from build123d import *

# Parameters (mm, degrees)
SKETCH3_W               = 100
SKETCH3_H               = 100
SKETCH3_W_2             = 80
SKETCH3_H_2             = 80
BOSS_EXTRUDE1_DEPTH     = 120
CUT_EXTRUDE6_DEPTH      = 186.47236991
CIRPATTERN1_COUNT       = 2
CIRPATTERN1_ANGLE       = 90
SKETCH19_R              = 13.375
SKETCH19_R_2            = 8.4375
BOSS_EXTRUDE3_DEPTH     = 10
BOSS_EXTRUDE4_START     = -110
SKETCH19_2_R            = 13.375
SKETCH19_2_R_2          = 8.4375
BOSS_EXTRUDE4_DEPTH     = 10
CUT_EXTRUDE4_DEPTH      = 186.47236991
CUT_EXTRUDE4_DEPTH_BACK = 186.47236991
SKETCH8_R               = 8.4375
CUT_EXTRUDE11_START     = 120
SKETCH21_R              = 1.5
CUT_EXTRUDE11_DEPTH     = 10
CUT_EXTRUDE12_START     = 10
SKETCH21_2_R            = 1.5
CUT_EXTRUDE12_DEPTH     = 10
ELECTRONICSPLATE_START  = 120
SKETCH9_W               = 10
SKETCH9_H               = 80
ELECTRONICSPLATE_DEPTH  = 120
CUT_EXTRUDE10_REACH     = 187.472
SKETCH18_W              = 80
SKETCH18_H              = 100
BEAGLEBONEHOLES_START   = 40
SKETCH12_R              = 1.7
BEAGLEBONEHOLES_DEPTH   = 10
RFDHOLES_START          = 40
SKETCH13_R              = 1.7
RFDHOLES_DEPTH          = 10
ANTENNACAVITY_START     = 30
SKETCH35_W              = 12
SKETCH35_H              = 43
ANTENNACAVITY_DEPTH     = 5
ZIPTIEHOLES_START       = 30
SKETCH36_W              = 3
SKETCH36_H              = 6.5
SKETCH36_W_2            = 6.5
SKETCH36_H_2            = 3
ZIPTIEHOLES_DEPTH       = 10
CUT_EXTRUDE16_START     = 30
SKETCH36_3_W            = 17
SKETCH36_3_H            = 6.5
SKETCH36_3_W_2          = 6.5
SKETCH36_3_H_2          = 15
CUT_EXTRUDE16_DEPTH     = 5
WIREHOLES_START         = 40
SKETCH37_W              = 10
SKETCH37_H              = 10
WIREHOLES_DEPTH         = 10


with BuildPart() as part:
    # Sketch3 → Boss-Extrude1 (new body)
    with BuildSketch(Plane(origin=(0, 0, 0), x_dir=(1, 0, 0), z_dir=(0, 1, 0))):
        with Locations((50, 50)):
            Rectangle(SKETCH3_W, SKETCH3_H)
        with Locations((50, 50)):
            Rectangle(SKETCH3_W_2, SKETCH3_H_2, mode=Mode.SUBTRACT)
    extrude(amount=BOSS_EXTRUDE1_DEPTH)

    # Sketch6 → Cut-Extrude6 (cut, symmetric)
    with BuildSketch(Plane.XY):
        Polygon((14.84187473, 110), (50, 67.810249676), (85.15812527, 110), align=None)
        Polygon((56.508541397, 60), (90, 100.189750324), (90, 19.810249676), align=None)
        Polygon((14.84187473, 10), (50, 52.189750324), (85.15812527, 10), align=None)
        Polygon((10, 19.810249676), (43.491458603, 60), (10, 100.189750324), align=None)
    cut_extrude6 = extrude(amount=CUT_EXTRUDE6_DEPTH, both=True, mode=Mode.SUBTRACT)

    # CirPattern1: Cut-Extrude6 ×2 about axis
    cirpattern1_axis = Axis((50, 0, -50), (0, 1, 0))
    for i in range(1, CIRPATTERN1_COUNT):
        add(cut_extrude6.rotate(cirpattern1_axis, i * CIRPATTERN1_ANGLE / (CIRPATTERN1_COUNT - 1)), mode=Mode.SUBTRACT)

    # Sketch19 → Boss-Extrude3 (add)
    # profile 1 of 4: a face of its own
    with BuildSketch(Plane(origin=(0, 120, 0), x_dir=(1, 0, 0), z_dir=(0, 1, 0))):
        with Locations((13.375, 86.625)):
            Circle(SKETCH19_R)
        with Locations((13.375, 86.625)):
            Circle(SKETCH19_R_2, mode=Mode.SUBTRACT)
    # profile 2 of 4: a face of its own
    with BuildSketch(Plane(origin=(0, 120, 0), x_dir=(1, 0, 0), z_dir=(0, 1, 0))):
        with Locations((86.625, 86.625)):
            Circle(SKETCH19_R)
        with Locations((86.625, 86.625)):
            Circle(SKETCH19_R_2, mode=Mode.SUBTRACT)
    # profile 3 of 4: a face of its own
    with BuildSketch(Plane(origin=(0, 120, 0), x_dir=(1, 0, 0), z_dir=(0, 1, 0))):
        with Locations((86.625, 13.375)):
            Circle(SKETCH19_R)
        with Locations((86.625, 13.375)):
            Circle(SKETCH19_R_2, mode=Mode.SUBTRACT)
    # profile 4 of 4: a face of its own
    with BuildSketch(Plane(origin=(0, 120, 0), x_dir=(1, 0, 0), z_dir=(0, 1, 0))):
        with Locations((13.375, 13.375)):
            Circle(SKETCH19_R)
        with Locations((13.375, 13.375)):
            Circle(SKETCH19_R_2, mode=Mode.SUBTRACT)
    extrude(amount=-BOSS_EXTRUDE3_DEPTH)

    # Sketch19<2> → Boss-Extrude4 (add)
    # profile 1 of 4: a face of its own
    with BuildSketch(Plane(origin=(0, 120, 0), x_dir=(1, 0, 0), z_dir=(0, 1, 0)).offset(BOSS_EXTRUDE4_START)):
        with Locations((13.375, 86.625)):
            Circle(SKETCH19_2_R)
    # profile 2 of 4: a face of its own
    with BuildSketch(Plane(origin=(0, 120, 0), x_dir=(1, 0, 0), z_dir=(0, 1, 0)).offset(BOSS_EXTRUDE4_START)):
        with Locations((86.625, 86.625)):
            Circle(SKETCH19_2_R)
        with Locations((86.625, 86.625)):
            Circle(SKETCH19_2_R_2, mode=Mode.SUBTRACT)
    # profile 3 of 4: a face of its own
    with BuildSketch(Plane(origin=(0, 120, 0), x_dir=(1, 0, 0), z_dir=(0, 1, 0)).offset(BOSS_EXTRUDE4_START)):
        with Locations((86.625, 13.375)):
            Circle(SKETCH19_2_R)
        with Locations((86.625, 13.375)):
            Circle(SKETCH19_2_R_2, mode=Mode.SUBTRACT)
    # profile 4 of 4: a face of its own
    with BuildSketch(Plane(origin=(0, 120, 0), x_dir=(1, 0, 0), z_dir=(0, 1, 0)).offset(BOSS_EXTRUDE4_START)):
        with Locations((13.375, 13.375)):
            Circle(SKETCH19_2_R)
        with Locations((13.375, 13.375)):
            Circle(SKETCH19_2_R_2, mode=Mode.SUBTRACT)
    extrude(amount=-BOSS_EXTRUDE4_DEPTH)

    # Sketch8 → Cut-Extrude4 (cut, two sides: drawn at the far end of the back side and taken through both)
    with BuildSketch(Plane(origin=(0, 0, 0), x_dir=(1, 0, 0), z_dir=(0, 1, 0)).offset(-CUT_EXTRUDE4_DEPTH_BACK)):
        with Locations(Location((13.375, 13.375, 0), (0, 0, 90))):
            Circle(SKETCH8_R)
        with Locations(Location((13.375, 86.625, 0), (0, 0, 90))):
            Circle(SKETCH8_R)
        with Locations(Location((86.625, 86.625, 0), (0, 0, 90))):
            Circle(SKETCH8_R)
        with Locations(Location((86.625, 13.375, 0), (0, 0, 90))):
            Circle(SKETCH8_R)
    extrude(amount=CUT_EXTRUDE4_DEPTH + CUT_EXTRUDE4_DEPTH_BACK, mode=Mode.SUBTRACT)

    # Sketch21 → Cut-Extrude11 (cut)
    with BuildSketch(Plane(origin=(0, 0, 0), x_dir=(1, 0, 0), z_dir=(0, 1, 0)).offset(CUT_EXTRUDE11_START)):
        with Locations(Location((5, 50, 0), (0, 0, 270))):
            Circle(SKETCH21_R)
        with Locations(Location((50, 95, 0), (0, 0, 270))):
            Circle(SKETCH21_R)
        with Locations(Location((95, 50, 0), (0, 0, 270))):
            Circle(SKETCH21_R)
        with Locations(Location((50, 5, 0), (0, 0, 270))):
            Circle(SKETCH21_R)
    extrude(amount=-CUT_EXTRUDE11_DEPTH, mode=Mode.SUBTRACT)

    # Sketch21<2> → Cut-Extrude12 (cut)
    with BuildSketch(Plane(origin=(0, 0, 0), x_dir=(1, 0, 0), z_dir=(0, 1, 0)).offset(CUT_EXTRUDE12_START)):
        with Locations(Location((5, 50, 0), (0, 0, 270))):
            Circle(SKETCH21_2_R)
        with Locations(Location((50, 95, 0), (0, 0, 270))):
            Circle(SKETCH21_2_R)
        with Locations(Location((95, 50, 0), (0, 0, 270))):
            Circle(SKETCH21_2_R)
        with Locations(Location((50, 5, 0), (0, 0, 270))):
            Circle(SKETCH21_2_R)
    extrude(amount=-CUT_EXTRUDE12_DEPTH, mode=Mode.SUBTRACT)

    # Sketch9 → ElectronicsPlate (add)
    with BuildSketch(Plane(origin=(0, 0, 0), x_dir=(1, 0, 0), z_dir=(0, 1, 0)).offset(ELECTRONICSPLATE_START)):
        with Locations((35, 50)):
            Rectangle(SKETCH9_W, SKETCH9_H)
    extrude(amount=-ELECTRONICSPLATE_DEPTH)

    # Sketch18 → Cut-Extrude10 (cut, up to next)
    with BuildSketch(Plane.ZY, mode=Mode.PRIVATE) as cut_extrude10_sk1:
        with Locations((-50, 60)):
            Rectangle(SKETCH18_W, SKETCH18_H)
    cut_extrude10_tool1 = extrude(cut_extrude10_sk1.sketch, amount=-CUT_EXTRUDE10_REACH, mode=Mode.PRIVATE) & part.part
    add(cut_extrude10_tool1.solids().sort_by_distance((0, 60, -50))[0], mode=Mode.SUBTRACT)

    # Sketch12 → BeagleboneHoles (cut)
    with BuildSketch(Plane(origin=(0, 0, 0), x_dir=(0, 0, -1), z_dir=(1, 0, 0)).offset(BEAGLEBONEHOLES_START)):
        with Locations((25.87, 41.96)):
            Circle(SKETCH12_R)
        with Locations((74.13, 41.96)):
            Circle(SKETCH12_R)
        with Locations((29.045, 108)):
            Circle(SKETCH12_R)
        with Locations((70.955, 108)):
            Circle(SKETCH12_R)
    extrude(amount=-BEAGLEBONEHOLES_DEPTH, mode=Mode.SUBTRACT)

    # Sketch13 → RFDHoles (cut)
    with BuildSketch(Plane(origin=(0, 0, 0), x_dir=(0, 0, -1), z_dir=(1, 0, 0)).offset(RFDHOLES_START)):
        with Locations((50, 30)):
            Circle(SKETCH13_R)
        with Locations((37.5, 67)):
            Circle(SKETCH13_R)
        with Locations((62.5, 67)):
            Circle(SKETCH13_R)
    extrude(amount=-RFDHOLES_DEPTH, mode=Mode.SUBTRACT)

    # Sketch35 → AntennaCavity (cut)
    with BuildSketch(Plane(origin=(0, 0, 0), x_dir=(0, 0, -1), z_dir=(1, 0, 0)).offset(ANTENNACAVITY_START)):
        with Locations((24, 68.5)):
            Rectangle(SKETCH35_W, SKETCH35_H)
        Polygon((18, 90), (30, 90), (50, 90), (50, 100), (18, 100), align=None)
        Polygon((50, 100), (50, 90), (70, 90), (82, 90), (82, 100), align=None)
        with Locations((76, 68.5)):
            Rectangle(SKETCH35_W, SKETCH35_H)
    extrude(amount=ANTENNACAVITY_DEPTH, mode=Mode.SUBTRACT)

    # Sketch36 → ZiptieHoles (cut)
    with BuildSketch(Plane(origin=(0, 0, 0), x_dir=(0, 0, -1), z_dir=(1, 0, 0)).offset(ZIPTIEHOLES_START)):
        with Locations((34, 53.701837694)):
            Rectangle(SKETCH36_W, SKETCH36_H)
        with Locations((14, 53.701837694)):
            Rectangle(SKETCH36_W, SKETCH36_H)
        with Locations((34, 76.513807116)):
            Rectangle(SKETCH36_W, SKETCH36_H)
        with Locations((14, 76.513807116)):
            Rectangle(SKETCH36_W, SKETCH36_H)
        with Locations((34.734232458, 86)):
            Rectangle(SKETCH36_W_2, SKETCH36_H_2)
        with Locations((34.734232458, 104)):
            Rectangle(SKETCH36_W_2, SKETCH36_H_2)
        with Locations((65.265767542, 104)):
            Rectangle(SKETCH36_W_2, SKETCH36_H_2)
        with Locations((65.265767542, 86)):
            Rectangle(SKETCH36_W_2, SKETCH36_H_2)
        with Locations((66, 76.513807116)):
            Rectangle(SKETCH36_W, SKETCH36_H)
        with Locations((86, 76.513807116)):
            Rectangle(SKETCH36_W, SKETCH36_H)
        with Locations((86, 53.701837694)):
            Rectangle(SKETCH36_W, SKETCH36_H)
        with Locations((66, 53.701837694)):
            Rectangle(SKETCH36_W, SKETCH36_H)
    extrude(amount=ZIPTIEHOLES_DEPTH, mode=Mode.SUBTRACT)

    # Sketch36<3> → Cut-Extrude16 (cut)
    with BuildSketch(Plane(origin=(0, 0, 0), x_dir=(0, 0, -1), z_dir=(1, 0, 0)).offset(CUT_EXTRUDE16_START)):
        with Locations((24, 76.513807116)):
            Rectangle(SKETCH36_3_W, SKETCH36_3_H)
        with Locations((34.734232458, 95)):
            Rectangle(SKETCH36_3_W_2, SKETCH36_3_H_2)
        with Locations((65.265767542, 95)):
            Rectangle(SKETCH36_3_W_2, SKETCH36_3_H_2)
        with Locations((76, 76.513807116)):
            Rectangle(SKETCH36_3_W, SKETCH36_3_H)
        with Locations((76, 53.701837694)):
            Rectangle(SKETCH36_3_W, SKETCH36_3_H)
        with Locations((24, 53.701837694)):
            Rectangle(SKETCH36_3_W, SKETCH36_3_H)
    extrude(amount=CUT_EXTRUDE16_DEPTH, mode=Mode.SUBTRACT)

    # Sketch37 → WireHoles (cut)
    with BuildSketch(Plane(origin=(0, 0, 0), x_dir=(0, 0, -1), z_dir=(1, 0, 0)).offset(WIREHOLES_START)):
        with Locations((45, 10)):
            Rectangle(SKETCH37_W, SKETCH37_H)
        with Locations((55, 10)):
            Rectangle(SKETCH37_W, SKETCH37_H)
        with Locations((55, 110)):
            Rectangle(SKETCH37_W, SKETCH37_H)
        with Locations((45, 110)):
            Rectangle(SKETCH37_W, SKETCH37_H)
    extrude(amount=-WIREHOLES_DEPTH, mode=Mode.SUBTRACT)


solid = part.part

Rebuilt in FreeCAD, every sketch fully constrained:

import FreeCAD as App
import Part
import Sketcher

V = App.Vector


def add_polygon(sketch, points):
    """Adds a closed chain of lines whose ends are joined by coincident constraints."""
    first, n = sketch.GeometryCount, len(points)
    for a, b in zip(points, points[1:] + points[:1]):
        sketch.addGeometry(Part.LineSegment(App.Vector(*a, 0), App.Vector(*b, 0)), False)
    for i in range(n):
        sketch.addConstraint(Sketcher.Constraint("Coincident", first + i, 2, first + (i + 1) % n, 1))

doc = App.newDocument("Part")
body = doc.addObject("PartDesign::Body", "Body")

# Sketch on XZ plane
sketch1 = doc.addObject("Sketcher::SketchObject", "Sketch")
body.addObject(sketch1)
sketch1.AttachmentSupport = (doc.XZ_Plane, [""])
sketch1.MapMode = "FlatFace"
add_polygon(sketch1, [(0, -100), (0, 0), (100, 0), (100, -100)])  # lines 0-3
add_polygon(sketch1, [(90, -10), (10, -10), (10, -90), (90, -90)])  # lines 4-7
sketch1.addConstraint([
    Sketcher.Constraint("Vertical", 0),
    Sketcher.Constraint("Horizontal", 1),
    Sketcher.Constraint("Vertical", 2),
    Sketcher.Constraint("Horizontal", 3),
    Sketcher.Constraint("Horizontal", 4),
    Sketcher.Constraint("Vertical", 5),
    Sketcher.Constraint("Horizontal", 6),
    Sketcher.Constraint("Vertical", 7),
    Sketcher.Constraint("Coincident", 0, 2, -1, 1),
    Sketcher.Constraint("Equal", 3, 0),
    Sketcher.Constraint("Equal", 6, 5),
    Sketcher.Constraint("DistanceX", 1, 1, 1, 2, 100.0),
    Sketcher.Constraint("DistanceX", 4, 2, 4, 1, 80.0),
    Sketcher.Constraint("DistanceX", -1, 1, 4, 2, 10.0),
    Sketcher.Constraint("DistanceY", 4, 2, -1, 1, 10.0),
])
pad1 = doc.addObject("PartDesign::Pad", "Pad")
body.addObject(pad1)
pad1.Profile = sketch1
pad1.Length = 120
pad1.Reversed = True

# Sketch on XY plane
sketch2 = doc.addObject("Sketcher::SketchObject", "Sketch001")
body.addObject(sketch2)
sketch2.AttachmentSupport = (doc.XY_Plane, [""])
sketch2.MapMode = "FlatFace"
add_polygon(sketch2, [(15, 110), (50, 68), (85, 110)])  # lines 0-2
add_polygon(sketch2, [(90, 100), (57, 60), (90, 20)])  # lines 3-5
add_polygon(sketch2, [(50, 52), (15, 10), (85, 10)])  # lines 6-8
add_polygon(sketch2, [(10, 20), (43, 60), (10, 100)])  # lines 9-11
sketch2.addConstraint([
    Sketcher.Constraint("Horizontal", 2),
    Sketcher.Constraint("Vertical", 5),
    Sketcher.Constraint("Horizontal", 7),
    Sketcher.Constraint("Vertical", 11),
    Sketcher.Constraint("Parallel", 1, 3),
    Sketcher.Constraint("Parallel", 0, 4),
    Sketcher.Constraint("Parallel", 3, 6),
    Sketcher.Constraint("Parallel", 4, 8),
    Sketcher.Constraint("Parallel", 6, 9),
    Sketcher.Constraint("Parallel", 8, 10),
    Sketcher.Constraint("Horizontal", 3, 2, 9, 2),
    Sketcher.Constraint("Horizontal", 5, 2, 10, 2),
    Sketcher.Constraint("Horizontal", 4, 2, 11, 2),
    Sketcher.Constraint("Vertical", 2, 2, 6, 2),
    Sketcher.Constraint("Vertical", 1, 2, 7, 2),
    Sketcher.Constraint("DistanceX", -1, 1, 0, 2, 50.0),
    Sketcher.Constraint("DistanceY", -1, 1, 1, 2, 110.0),
    Sketcher.Constraint("DistanceY", -1, 1, 3, 2, 60.0),
    Sketcher.Constraint("DistanceX", -1, 1, 4, 2, 90.0),
    Sketcher.Constraint("DistanceY", -1, 1, 6, 2, 10.0),
    Sketcher.Constraint("DistanceX", -1, 1, 10, 2, 10.0),
    Sketcher.Constraint("DistanceY", 4, 2, 0, 2, 48.0),
    Sketcher.Constraint("DistanceY", 5, 1, 5, 2, 80.379501),
    Sketcher.Constraint("DistanceX", 2, 2, 2, 1, 70.316251),
])
pocket1 = doc.addObject("PartDesign::Pocket", "Pocket")
body.addObject(pocket1)
pocket1.Profile = sketch2
pocket1.Length = 372.94474
pocket1.Midplane = True
doc.recompute()

datumline = doc.addObject("PartDesign::Line", "DatumLine")
body.addObject(datumline)
datumline.Placement = App.Placement(V(50, 0, -50), App.Rotation(V(0, 0, 1), V(0, 1, 0)))
polarpattern = doc.addObject("PartDesign::PolarPattern", "PolarPattern")
body.addObject(polarpattern)
polarpattern.Originals = [pocket1]
polarpattern.Axis = (datumline, [""])
polarpattern.Angle = 90
polarpattern.Occurrences = 2
body.Tip = polarpattern

# Sketch on XZ plane
sketch3 = doc.addObject("Sketcher::SketchObject", "Sketch002")
body.addObject(sketch3)
sketch3.AttachmentSupport = (doc.XZ_Plane, [""])
sketch3.MapMode = "FlatFace"
sketch3.AttachmentOffset = App.Placement(V(0, 0, -120), App.Rotation())
sketch3.addGeometry([
    Part.Circle(V(13, -87, 0), V(0, 0, 1), 13),  # 0
    Part.Circle(V(13, -87, 0), V(0, 0, 1), 8),  # 1
    Part.Circle(V(87, -87, 0), V(0, 0, 1), 13),  # 2
    Part.Circle(V(87, -87, 0), V(0, 0, 1), 8),  # 3
    Part.Circle(V(87, -13, 0), V(0, 0, 1), 13),  # 4
    Part.Circle(V(87, -13, 0), V(0, 0, 1), 8),  # 5
    Part.Circle(V(13, -13, 0), V(0, 0, 1), 13),  # 6
    Part.Circle(V(13, -13, 0), V(0, 0, 1), 8),  # 7
], False)
sketch3.addConstraint([
    Sketcher.Constraint("Coincident", 1, 3, 0, 3),
    Sketcher.Constraint("Coincident", 3, 3, 2, 3),
    Sketcher.Constraint("Coincident", 5, 3, 4, 3),
    Sketcher.Constraint("Coincident", 7, 3, 6, 3),
    Sketcher.Constraint("Equal", 0, 2),
    Sketcher.Constraint("Equal", 1, 3),
    Sketcher.Constraint("Equal", 2, 4),
    Sketcher.Constraint("Equal", 3, 5),
    Sketcher.Constraint("Equal", 4, 6),
    Sketcher.Constraint("Equal", 5, 7),
    Sketcher.Constraint("Horizontal", 1, 3, 2, 3),
    Sketcher.Constraint("Horizontal", 5, 3, 6, 3),
    Sketcher.Constraint("Vertical", 3, 3, 4, 3),
    Sketcher.Constraint("Vertical", 1, 3, 6, 3),
    Sketcher.Constraint("Diameter", 0, 26.75),
    Sketcher.Constraint("Diameter", 1, 16.875),
    Sketcher.Constraint("DistanceX", 0, 3, 2, 3, 73.25),
    Sketcher.Constraint("DistanceY", 2, 3, 4, 3, 73.25),
    Sketcher.Constraint("DistanceX", -1, 1, 0, 3, 13.375),
    Sketcher.Constraint("DistanceY", 0, 3, -1, 1, 86.625),
])
pad2 = doc.addObject("PartDesign::Pad", "Pad001")
body.addObject(pad2)
pad2.Profile = sketch3
pad2.Length = 10

# Sketch on XZ plane
sketch4 = doc.addObject("Sketcher::SketchObject", "Sketch003")
body.addObject(sketch4)
sketch4.AttachmentSupport = (doc.XZ_Plane, [""])
sketch4.MapMode = "FlatFace"
sketch4.AttachmentOffset = App.Placement(V(0, 0, -10), App.Rotation())
sketch4.addGeometry([
    Part.Circle(V(13, -87, 0), V(0, 0, 1), 13),  # 0
    Part.Circle(V(87, -87, 0), V(0, 0, 1), 13),  # 1
    Part.Circle(V(87, -87, 0), V(0, 0, 1), 8),  # 2
    Part.Circle(V(87, -13, 0), V(0, 0, 1), 13),  # 3
    Part.Circle(V(87, -13, 0), V(0, 0, 1), 8),  # 4
    Part.Circle(V(13, -13, 0), V(0, 0, 1), 13),  # 5
    Part.Circle(V(13, -13, 0), V(0, 0, 1), 8),  # 6
], False)
sketch4.addConstraint([
    Sketcher.Constraint("Coincident", 2, 3, 1, 3),
    Sketcher.Constraint("Coincident", 4, 3, 3, 3),
    Sketcher.Constraint("Coincident", 6, 3, 5, 3),
    Sketcher.Constraint("Equal", 0, 1),
    Sketcher.Constraint("Equal", 1, 3),
    Sketcher.Constraint("Equal", 2, 4),
    Sketcher.Constraint("Equal", 3, 5),
    Sketcher.Constraint("Equal", 4, 6),
    Sketcher.Constraint("Horizontal", 0, 3, 1, 3),
    Sketcher.Constraint("Horizontal", 4, 3, 5, 3),
    Sketcher.Constraint("Vertical", 2, 3, 3, 3),
    Sketcher.Constraint("Vertical", 0, 3, 5, 3),
    Sketcher.Constraint("Diameter", 0, 26.75),
    Sketcher.Constraint("Diameter", 2, 16.875),
    Sketcher.Constraint("DistanceX", 0, 3, 1, 3, 73.25),
    Sketcher.Constraint("DistanceY", 1, 3, 3, 3, 73.25),
    Sketcher.Constraint("DistanceX", -1, 1, 0, 3, 13.375),
    Sketcher.Constraint("DistanceY", 0, 3, -1, 1, 86.625),
])
pad3 = doc.addObject("PartDesign::Pad", "Pad002")
body.addObject(pad3)
pad3.Profile = sketch4
pad3.Length = 10

# Sketch on XZ plane
sketch5 = doc.addObject("Sketcher::SketchObject", "Sketch004")
body.addObject(sketch5)
sketch5.AttachmentSupport = (doc.XZ_Plane, [""])
sketch5.MapMode = "FlatFace"
sketch5.addGeometry([
    Part.Circle(V(13, -13, 0), V(0, 0, 1), 8),
    Part.Circle(V(13, -87, 0), V(0, 0, 1), 8),
    Part.Circle(V(87, -87, 0), V(0, 0, 1), 8),
    Part.Circle(V(87, -13, 0), V(0, 0, 1), 8),
], False)
sketch5.addConstraint([
    Sketcher.Constraint("Equal", 0, 1),
    Sketcher.Constraint("Equal", 1, 2),
    Sketcher.Constraint("Equal", 2, 3),
    Sketcher.Constraint("Horizontal", 1, 3, 2, 3),
    Sketcher.Constraint("Horizontal", 0, 3, 3, 3),
    Sketcher.Constraint("Vertical", 0, 3, 1, 3),
    Sketcher.Constraint("Vertical", 2, 3, 3, 3),
    Sketcher.Constraint("Diameter", 0, 16.875),
    Sketcher.Constraint("DistanceY", 1, 3, 0, 3, 73.25),
    Sketcher.Constraint("DistanceX", 1, 3, 2, 3, 73.25),
    Sketcher.Constraint("DistanceX", -1, 1, 0, 3, 13.375),
    Sketcher.Constraint("DistanceY", 0, 3, -1, 1, 13.375),
])
pocket2 = doc.addObject("PartDesign::Pocket", "Pocket001")
body.addObject(pocket2)
pocket2.Profile = sketch5
pocket2.Type = "ThroughAll"
pocket2.Midplane = True

# Sketch on XZ plane
sketch6 = doc.addObject("Sketcher::SketchObject", "Sketch005")
body.addObject(sketch6)
sketch6.AttachmentSupport = (doc.XZ_Plane, [""])
sketch6.MapMode = "FlatFace"
sketch6.AttachmentOffset = App.Placement(V(0, 0, -120), App.Rotation())
sketch6.addGeometry([
    Part.Circle(V(5, -50, 0), V(0, 0, 1), 1.5),
    Part.Circle(V(50, -95, 0), V(0, 0, 1), 1.5),
    Part.Circle(V(95, -50, 0), V(0, 0, 1), 1.5),
    Part.Circle(V(50, -5, 0), V(0, 0, 1), 1.5),
], False)
sketch6.addConstraint([
    Sketcher.Constraint("Equal", 0, 1),
    Sketcher.Constraint("Equal", 1, 2),
    Sketcher.Constraint("Equal", 2, 3),
    Sketcher.Constraint("Horizontal", 0, 3, 2, 3),
    Sketcher.Constraint("Vertical", 1, 3, 3, 3),
    Sketcher.Constraint("Diameter", 0, 3.0),
    Sketcher.Constraint("DistanceX", -1, 1, 0, 3, 5.0),
    Sketcher.Constraint("DistanceY", 0, 3, -1, 1, 50.0),
    Sketcher.Constraint("DistanceX", -1, 1, 1, 3, 50.0),
    Sketcher.Constraint("DistanceY", 1, 3, -1, 1, 95.0),
    Sketcher.Constraint("DistanceX", -1, 1, 2, 3, 95.0),
    Sketcher.Constraint("DistanceY", 3, 3, -1, 1, 5.0),
])
pocket3 = doc.addObject("PartDesign::Pocket", "Pocket002")
body.addObject(pocket3)
pocket3.Profile = sketch6
pocket3.Length = 10
pocket3.Reversed = True

# Sketch on XZ plane
sketch7 = doc.addObject("Sketcher::SketchObject", "Sketch006")
body.addObject(sketch7)
sketch7.AttachmentSupport = (doc.XZ_Plane, [""])
sketch7.MapMode = "FlatFace"
sketch7.AttachmentOffset = App.Placement(V(0, 0, -10), App.Rotation())
sketch7.addGeometry([
    Part.Circle(V(5, -50, 0), V(0, 0, 1), 1.5),
    Part.Circle(V(50, -95, 0), V(0, 0, 1), 1.5),
    Part.Circle(V(95, -50, 0), V(0, 0, 1), 1.5),
    Part.Circle(V(50, -5, 0), V(0, 0, 1), 1.5),
], False)
sketch7.addConstraint([
    Sketcher.Constraint("Equal", 0, 1),
    Sketcher.Constraint("Equal", 1, 2),
    Sketcher.Constraint("Equal", 2, 3),
    Sketcher.Constraint("Horizontal", 0, 3, 2, 3),
    Sketcher.Constraint("Vertical", 1, 3, 3, 3),
    Sketcher.Constraint("Diameter", 0, 3.0),
    Sketcher.Constraint("DistanceX", -1, 1, 0, 3, 5.0),
    Sketcher.Constraint("DistanceY", 0, 3, -1, 1, 50.0),
    Sketcher.Constraint("DistanceX", -1, 1, 1, 3, 50.0),
    Sketcher.Constraint("DistanceY", 1, 3, -1, 1, 95.0),
    Sketcher.Constraint("DistanceX", -1, 1, 2, 3, 95.0),
    Sketcher.Constraint("DistanceY", 3, 3, -1, 1, 5.0),
])
pocket4 = doc.addObject("PartDesign::Pocket", "Pocket003")
body.addObject(pocket4)
pocket4.Profile = sketch7
pocket4.Length = 10
pocket4.Reversed = True

# Sketch on XZ plane
sketch8 = doc.addObject("Sketcher::SketchObject", "Sketch007")
body.addObject(sketch8)
sketch8.AttachmentSupport = (doc.XZ_Plane, [""])
sketch8.MapMode = "FlatFace"
sketch8.AttachmentOffset = App.Placement(V(0, 0, -120), App.Rotation())
add_polygon(sketch8, [(30, -90), (30, -10), (40, -10), (40, -90)])  # lines 0-3
sketch8.addConstraint([
    Sketcher.Constraint("Vertical", 0),
    Sketcher.Constraint("Horizontal", 1),
    Sketcher.Constraint("Vertical", 2),
    Sketcher.Constraint("Horizontal", 3),
    Sketcher.Constraint("DistanceX", 1, 1, 1, 2, 10.0),
    Sketcher.Constraint("DistanceY", 0, 1, 0, 2, 80.0),
    Sketcher.Constraint("DistanceX", -1, 1, 0, 2, 30.0),
    Sketcher.Constraint("DistanceY", 0, 2, -1, 1, 10.0),
])
pad4 = doc.addObject("PartDesign::Pad", "Pad003")
body.addObject(pad4)
pad4.Profile = sketch8
pad4.Length = 120

# Sketch on YZ plane
sketch9 = doc.addObject("Sketcher::SketchObject", "Sketch008")
body.addObject(sketch9)
sketch9.AttachmentSupport = (doc.YZ_Plane, [""])
sketch9.MapMode = "FlatFace"
add_polygon(sketch9, [(110, -90), (10, -90), (10, -10), (110, -10)])  # lines 0-3
sketch9.addConstraint([
    Sketcher.Constraint("Horizontal", 0),
    Sketcher.Constraint("Vertical", 1),
    Sketcher.Constraint("Horizontal", 2),
    Sketcher.Constraint("Vertical", 3),
    Sketcher.Constraint("DistanceX", 0, 2, 0, 1, 100.0),
    Sketcher.Constraint("DistanceY", 1, 1, 1, 2, 80.0),
    Sketcher.Constraint("DistanceX", -1, 1, 0, 2, 10.0),
    Sketcher.Constraint("DistanceY", 0, 2, -1, 1, 90.0),
])
pocket5 = doc.addObject("PartDesign::Pocket", "Pocket004")
body.addObject(pocket5)
pocket5.Profile = sketch9
pocket5.Type = "UpToFirst"
pocket5.Reversed = True

# Sketch on YZ plane
sketch10 = doc.addObject("Sketcher::SketchObject", "Sketch009")
body.addObject(sketch10)
sketch10.AttachmentSupport = (doc.YZ_Plane, [""])
sketch10.MapMode = "FlatFace"
sketch10.AttachmentOffset = App.Placement(V(0, 0, 40), App.Rotation())
sketch10.addGeometry([
    Part.Circle(V(42, -25.9, 0), V(0, 0, 1), 1.7),
    Part.Circle(V(42, -74.1, 0), V(0, 0, 1), 1.7),
    Part.Circle(V(108, -29, 0), V(0, 0, 1), 1.7),
    Part.Circle(V(108, -71, 0), V(0, 0, 1), 1.7),
], False)
sketch10.addConstraint([
    Sketcher.Constraint("Equal", 0, 1),
    Sketcher.Constraint("Equal", 1, 2),
    Sketcher.Constraint("Equal", 2, 3),
    Sketcher.Constraint("Vertical", 0, 3, 1, 3),
    Sketcher.Constraint("Vertical", 2, 3, 3, 3),
    Sketcher.Constraint("Diameter", 0, 3.4),
    Sketcher.Constraint("DistanceX", -1, 1, 2, 3, 108.0),
    Sketcher.Constraint("DistanceX", -1, 1, 0, 3, 41.96),
    Sketcher.Constraint("DistanceY", 0, 3, -1, 1, 25.87),
    Sketcher.Constraint("DistanceY", 1, 3, -1, 1, 74.13),
    Sketcher.Constraint("DistanceY", 3, 3, 2, 3, 41.91),
    Sketcher.Constraint("DistanceY", 2, 3, -1, 1, 29.045),
])
pocket6 = doc.addObject("PartDesign::Pocket", "Pocket005")
body.addObject(pocket6)
pocket6.Profile = sketch10
pocket6.Length = 10

# Sketch on YZ plane
sketch11 = doc.addObject("Sketcher::SketchObject", "Sketch010")
body.addObject(sketch11)
sketch11.AttachmentSupport = (doc.YZ_Plane, [""])
sketch11.MapMode = "FlatFace"
sketch11.AttachmentOffset = App.Placement(V(0, 0, 40), App.Rotation())
sketch11.addGeometry([
    Part.Circle(V(30, -50, 0), V(0, 0, 1), 1.7),
    Part.Circle(V(67, -37.5, 0), V(0, 0, 1), 1.7),
    Part.Circle(V(67, -62.5, 0), V(0, 0, 1), 1.7),
], False)
sketch11.addConstraint([
    Sketcher.Constraint("Equal", 0, 1),
    Sketcher.Constraint("Equal", 1, 2),
    Sketcher.Constraint("Vertical", 1, 3, 2, 3),
    Sketcher.Constraint("Diameter", 0, 3.4),
    Sketcher.Constraint("DistanceX", -1, 1, 0, 3, 30.0),
    Sketcher.Constraint("DistanceY", 0, 3, -1, 1, 50.0),
    Sketcher.Constraint("DistanceX", -1, 1, 1, 3, 67.0),
    Sketcher.Constraint("DistanceY", 2, 3, 1, 3, 25.0),
    Sketcher.Constraint("DistanceY", 1, 3, -1, 1, 37.5),
])
pocket7 = doc.addObject("PartDesign::Pocket", "Pocket006")
body.addObject(pocket7)
pocket7.Profile = sketch11
pocket7.Length = 10

# Sketch on YZ plane
sketch12 = doc.addObject("Sketcher::SketchObject", "Sketch011")
body.addObject(sketch12)
sketch12.AttachmentSupport = (doc.YZ_Plane, [""])
sketch12.MapMode = "FlatFace"
sketch12.AttachmentOffset = App.Placement(V(0, 0, 30), App.Rotation())
add_polygon(sketch12, [(47, -18), (47, -30), (90, -30), (90, -70), (47, -70), (47, -82), (100, -82), (100, -18)])  # lines 0-7
sketch12.addConstraint([
    Sketcher.Constraint("Vertical", 0),
    Sketcher.Constraint("Horizontal", 1),
    Sketcher.Constraint("Vertical", 2),
    Sketcher.Constraint("Horizontal", 3),
    Sketcher.Constraint("Vertical", 4),
    Sketcher.Constraint("Horizontal", 5),
    Sketcher.Constraint("Vertical", 6),
    Sketcher.Constraint("Horizontal", 7),
    Sketcher.Constraint("Vertical", 0, 2, 3, 2),
    Sketcher.Constraint("Equal", 0, 4),
    Sketcher.Constraint("DistanceX", 1, 1, 1, 2, 43.0),
    Sketcher.Constraint("DistanceX", 5, 1, 5, 2, 53.0),
    Sketcher.Constraint("DistanceY", 0, 2, 0, 1, 12.0),
    Sketcher.Constraint("DistanceY", 2, 2, 2, 1, 40.0),
    Sketcher.Constraint("DistanceX", -1, 1, 0, 2, 47.0),
    Sketcher.Constraint("DistanceY", 0, 2, -1, 1, 30.0),
])
pocket8 = doc.addObject("PartDesign::Pocket", "Pocket007")
body.addObject(pocket8)
pocket8.Profile = sketch12
pocket8.Length = 5
pocket8.Reversed = True

# Sketch on YZ plane
sketch13 = doc.addObject("Sketcher::SketchObject", "Sketch012")
body.addObject(sketch13)
sketch13.AttachmentSupport = (doc.YZ_Plane, [""])
sketch13.MapMode = "FlatFace"
sketch13.AttachmentOffset = App.Placement(V(0, 0, 30), App.Rotation())
add_polygon(sketch13, [(57, -32.5), (50.5, -32.5), (50.5, -35.5), (57, -35.5)])  # lines 0-3
add_polygon(sketch13, [(57, -12.5), (50.5, -12.5), (50.5, -15.5), (57, -15.5)])  # lines 4-7
add_polygon(sketch13, [(79.8, -32.5), (73.3, -32.5), (73.3, -35.5), (79.8, -35.5)])  # lines 8-11
add_polygon(sketch13, [(79.8, -12.5), (73.3, -12.5), (73.3, -15.5), (79.8, -15.5)])  # lines 12-15
add_polygon(sketch13, [(87.5, -31.5), (84.5, -31.5), (84.5, -38), (87.5, -38)])  # lines 16-19
add_polygon(sketch13, [(105.5, -31.5), (102.5, -31.5), (102.5, -38), (105.5, -38)])  # lines 20-23
add_polygon(sketch13, [(105.5, -62), (102.5, -62), (102.5, -68.5), (105.5, -68.5)])  # lines 24-27
add_polygon(sketch13, [(87.5, -62), (84.5, -62), (84.5, -68.5), (87.5, -68.5)])  # lines 28-31
add_polygon(sketch13, [(79.8, -64.5), (73.3, -64.5), (73.3, -67.5), (79.8, -67.5)])  # lines 32-35
add_polygon(sketch13, [(79.8, -84.5), (73.3, -84.5), (73.3, -87.5), (79.8, -87.5)])  # lines 36-39
add_polygon(sketch13, [(57, -84.5), (50.5, -84.5), (50.5, -87.5), (57, -87.5)])  # lines 40-43
add_polygon(sketch13, [(57, -64.5), (50.5, -64.5), (50.5, -67.5), (57, -67.5)])  # lines 44-47
sketch13.addConstraint([
    Sketcher.Constraint("Horizontal", 0),
    Sketcher.Constraint("Vertical", 1),
    Sketcher.Constraint("Horizontal", 2),
    Sketcher.Constraint("Vertical", 3),
    Sketcher.Constraint("Horizontal", 4),
    Sketcher.Constraint("Vertical", 5),
    Sketcher.Constraint("Horizontal", 6),
    Sketcher.Constraint("Vertical", 7),
    Sketcher.Constraint("Horizontal", 8),
    Sketcher.Constraint("Vertical", 9),
    Sketcher.Constraint("Horizontal", 10),
    Sketcher.Constraint("Vertical", 11),
    Sketcher.Constraint("Horizontal", 12),
    Sketcher.Constraint("Vertical", 13),
    Sketcher.Constraint("Horizontal", 14),
    Sketcher.Constraint("Vertical", 15),
    Sketcher.Constraint("Horizontal", 16),
    Sketcher.Constraint("Vertical", 17),
    Sketcher.Constraint("Horizontal", 18),
    Sketcher.Constraint("Vertical", 19),
    Sketcher.Constraint("Horizontal", 20),
    Sketcher.Constraint("Vertical", 21),
    Sketcher.Constraint("Horizontal", 22),
    Sketcher.Constraint("Vertical", 23),
    Sketcher.Constraint("Horizontal", 24),
    Sketcher.Constraint("Vertical", 25),
    Sketcher.Constraint("Horizontal", 26),
    Sketcher.Constraint("Vertical", 27),
    Sketcher.Constraint("Horizontal", 28),
    Sketcher.Constraint("Vertical", 29),
    Sketcher.Constraint("Horizontal", 30),
    Sketcher.Constraint("Vertical", 31),
    Sketcher.Constraint("Horizontal", 32),
    Sketcher.Constraint("Vertical", 33),
    Sketcher.Constraint("Horizontal", 34),
    Sketcher.Constraint("Vertical", 35),
    Sketcher.Constraint("Horizontal", 36),
    Sketcher.Constraint("Vertical", 37),
    Sketcher.Constraint("Horizontal", 38),
    Sketcher.Constraint("Vertical", 39),
    Sketcher.Constraint("Horizontal", 40),
    Sketcher.Constraint("Vertical", 41),
    Sketcher.Constraint("Horizontal", 42),
    Sketcher.Constraint("Vertical", 43),
    Sketcher.Constraint("Horizontal", 44),
    Sketcher.Constraint("Vertical", 45),
    Sketcher.Constraint("Horizontal", 46),
    Sketcher.Constraint("Vertical", 47),
    Sketcher.Constraint("Horizontal", 3, 2, 8, 2),
    Sketcher.Constraint("Horizontal", 2, 2, 9, 2),
    Sketcher.Constraint("Horizontal", 7, 2, 12, 2),
    Sketcher.Constraint("Horizontal", 6, 2, 13, 2),
    Sketcher.Constraint("Horizontal", 19, 2, 20, 2),
    Sketcher.Constraint("Horizontal", 18, 2, 21, 2),
    Sketcher.Constraint("Horizontal", 27, 2, 28, 2),
    Sketcher.Constraint("Horizontal", 26, 2, 29, 2),
    Sketcher.Constraint("Horizontal", 39, 2, 40, 2),
    Sketcher.Constraint("Horizontal", 38, 2, 41, 2),
    Sketcher.Constraint("Horizontal", 35, 2, 44, 2),
    Sketcher.Constraint("Horizontal", 34, 2, 45, 2),
    Sketcher.Constraint("Vertical", 1, 2, 4, 2),
    Sketcher.Constraint("Vertical", 3, 2, 6, 2),
    Sketcher.Constraint("Vertical", 9, 2, 12, 2),
    Sketcher.Constraint("Vertical", 11, 2, 14, 2),
    Sketcher.Constraint("Vertical", 21, 2, 24, 2),
    Sketcher.Constraint("Vertical", 23, 2, 26, 2),
    Sketcher.Constraint("Vertical", 17, 2, 28, 2),
    Sketcher.Constraint("Vertical", 19, 2, 30, 2),
    Sketcher.Constraint("Vertical", 13, 2, 32, 2),
    Sketcher.Constraint("Vertical", 15, 2, 34, 2),
    Sketcher.Constraint("Vertical", 33, 2, 36, 2),
    Sketcher.Constraint("Vertical", 35, 2, 38, 2),
    Sketcher.Constraint("Vertical", 5, 2, 40, 2),
    Sketcher.Constraint("Vertical", 7, 2, 42, 2),
    Sketcher.Constraint("Vertical", 41, 2, 44, 2),
    Sketcher.Constraint("Vertical", 43, 2, 46, 2),
    Sketcher.Constraint("Equal", 6, 8),
    Sketcher.Constraint("Equal", 18, 20),
    Sketcher.Constraint("Equal", 30, 1),
    Sketcher.Constraint("Equal", 3, 5),
    Sketcher.Constraint("Equal", 46, 17),
    Sketcher.Constraint("Equal", 23, 25),
    Sketcher.Constraint("Equal", 15, 33),
    Sketcher.Constraint("Equal", 35, 37),
    Sketcher.Constraint("DistanceX", 16, 2, 16, 1, 3.0),
    Sketcher.Constraint("DistanceX", 0, 2, 0, 1, 6.5),
    Sketcher.Constraint("DistanceY", 0, 2, 4, 2, 20.0),
    Sketcher.Constraint("DistanceX", 19, 2, 20, 2, 15.0),
    Sketcher.Constraint("DistanceY", 36, 2, 33, 2, 17.0),
    Sketcher.Constraint("DistanceY", 0, 2, -1, 1, 32.5),
    Sketcher.Constraint("DistanceX", -1, 1, 16, 2, 84.5),
    Sketcher.Constraint("DistanceY", 32, 2, -1, 1, 64.5),
    Sketcher.Constraint("DistanceX", 3, 2, 8, 2, 16.311969),
    Sketcher.Constraint("DistanceX", -1, 1, 0, 2, 50.451838),
    Sketcher.Constraint("DistanceY", 16, 2, -1, 1, 31.484232),
    Sketcher.Constraint("DistanceY", 24, 2, -1, 1, 62.015768),
])
pocket9 = doc.addObject("PartDesign::Pocket", "Pocket008")
body.addObject(pocket9)
pocket9.Profile = sketch13
pocket9.Length = 10
pocket9.Reversed = True

# Sketch on YZ plane
sketch14 = doc.addObject("Sketcher::SketchObject", "Sketch013")
body.addObject(sketch14)
sketch14.AttachmentSupport = (doc.YZ_Plane, [""])
sketch14.MapMode = "FlatFace"
sketch14.AttachmentOffset = App.Placement(V(0, 0, 30), App.Rotation())
add_polygon(sketch14, [(80, -16), (73, -16), (73, -32), (80, -32)])  # lines 0-3
add_polygon(sketch14, [(102, -31), (88, -31), (88, -38), (102, -38)])  # lines 4-7
add_polygon(sketch14, [(102, -62), (88, -62), (88, -69), (102, -69)])  # lines 8-11
add_polygon(sketch14, [(80, -68), (73, -68), (73, -84), (80, -84)])  # lines 12-15
add_polygon(sketch14, [(57, -68), (50, -68), (50, -84), (57, -84)])  # lines 16-19
add_polygon(sketch14, [(57, -16), (50, -16), (50, -32), (57, -32)])  # lines 20-23
sketch14.addConstraint([
    Sketcher.Constraint("Horizontal", 0),
    Sketcher.Constraint("Vertical", 1),
    Sketcher.Constraint("Horizontal", 2),
    Sketcher.Constraint("Vertical", 3),
    Sketcher.Constraint("Horizontal", 4),
    Sketcher.Constraint("Vertical", 5),
    Sketcher.Constraint("Horizontal", 6),
    Sketcher.Constraint("Vertical", 7),
    Sketcher.Constraint("Horizontal", 8),
    Sketcher.Constraint("Vertical", 9),
    Sketcher.Constraint("Horizontal", 10),
    Sketcher.Constraint("Vertical", 11),
    Sketcher.Constraint("Horizontal", 12),
    Sketcher.Constraint("Vertical", 13),
    Sketcher.Constraint("Horizontal", 14),
    Sketcher.Constraint("Vertical", 15),
    Sketcher.Constraint("Horizontal", 16),
    Sketcher.Constraint("Vertical", 17),
    Sketcher.Constraint("Horizontal", 18),
    Sketcher.Constraint("Vertical", 19),
    Sketcher.Constraint("Horizontal", 20),
    Sketcher.Constraint("Vertical", 21),
    Sketcher.Constraint("Horizontal", 22),
    Sketcher.Constraint("Vertical", 23),
    Sketcher.Constraint("Horizontal", 15, 2, 16, 2),
    Sketcher.Constraint("Horizontal", 14, 2, 17, 2),
    Sketcher.Constraint("Horizontal", 3, 2, 20, 2),
    Sketcher.Constraint("Horizontal", 2, 2, 21, 2),
    Sketcher.Constraint("Vertical", 5, 2, 8, 2),
    Sketcher.Constraint("Vertical", 7, 2, 10, 2),
    Sketcher.Constraint("Vertical", 1, 2, 12, 2),
    Sketcher.Constraint("Vertical", 3, 2, 14, 2),
    Sketcher.Constraint("Vertical", 17, 2, 20, 2),
    Sketcher.Constraint("Vertical", 19, 2, 22, 2),
    Sketcher.Constraint("Equal", 14, 16),
    Sketcher.Constraint("Equal", 22, 5),
    Sketcher.Constraint("Equal", 7, 9),
    Sketcher.Constraint("Equal", 3, 13),
    Sketcher.Constraint("DistanceX", 4, 2, 4, 1, 15.0),
    Sketcher.Constraint("DistanceY", 1, 2, 1, 1, 17.0),
    Sketcher.Constraint("DistanceX", 0, 2, 0, 1, 6.5),
    Sketcher.Constraint("DistanceY", 0, 2, -1, 1, 15.5),
    Sketcher.Constraint("DistanceX", -1, 1, 4, 2, 87.5),
    Sketcher.Constraint("DistanceY", 12, 2, -1, 1, 67.5),
    Sketcher.Constraint("DistanceX", 16, 2, 12, 2, 22.811969),
    Sketcher.Constraint("DistanceX", -1, 1, 0, 2, 73.263807),
    Sketcher.Constraint("DistanceY", 4, 2, -1, 1, 31.484232),
    Sketcher.Constraint("DistanceY", 8, 2, -1, 1, 62.015768),
])
pocket10 = doc.addObject("PartDesign::Pocket", "Pocket009")
body.addObject(pocket10)
pocket10.Profile = sketch14
pocket10.Length = 5
pocket10.Reversed = True

# Sketch on YZ plane
sketch15 = doc.addObject("Sketcher::SketchObject", "Sketch014")
body.addObject(sketch15)
sketch15.AttachmentSupport = (doc.YZ_Plane, [""])
sketch15.MapMode = "FlatFace"
sketch15.AttachmentOffset = App.Placement(V(0, 0, 40), App.Rotation())
add_polygon(sketch15, [(15, -40), (5, -40), (5, -60), (15, -60)])  # lines 0-3
add_polygon(sketch15, [(105, -60), (115, -60), (115, -40), (105, -40)])  # lines 4-7
sketch15.addConstraint([
    Sketcher.Constraint("Horizontal", 0),
    Sketcher.Constraint("Vertical", 1),
    Sketcher.Constraint("Horizontal", 2),
    Sketcher.Constraint("Vertical", 3),
    Sketcher.Constraint("Horizontal", 4),
    Sketcher.Constraint("Vertical", 5),
    Sketcher.Constraint("Horizontal", 6),
    Sketcher.Constraint("Vertical", 7),
    Sketcher.Constraint("Horizontal", 2, 2, 4, 2),
    Sketcher.Constraint("Horizontal", 3, 2, 5, 2),
    Sketcher.Constraint("Equal", 2, 4),
    Sketcher.Constraint("DistanceX", 0, 2, 0, 1, 10.0),
    Sketcher.Constraint("DistanceY", 1, 2, 1, 1, 20.0),
    Sketcher.Constraint("DistanceX", -1, 1, 0, 2, 5.0),
    Sketcher.Constraint("DistanceY", 0, 2, -1, 1, 40.0),
    Sketcher.Constraint("DistanceX", -1, 1, 4, 2, 115.0),
])
pocket11 = doc.addObject("PartDesign::Pocket", "Pocket010")
body.addObject(pocket11)
pocket11.Profile = sketch15
pocket11.Length = 10

doc.recompute()
